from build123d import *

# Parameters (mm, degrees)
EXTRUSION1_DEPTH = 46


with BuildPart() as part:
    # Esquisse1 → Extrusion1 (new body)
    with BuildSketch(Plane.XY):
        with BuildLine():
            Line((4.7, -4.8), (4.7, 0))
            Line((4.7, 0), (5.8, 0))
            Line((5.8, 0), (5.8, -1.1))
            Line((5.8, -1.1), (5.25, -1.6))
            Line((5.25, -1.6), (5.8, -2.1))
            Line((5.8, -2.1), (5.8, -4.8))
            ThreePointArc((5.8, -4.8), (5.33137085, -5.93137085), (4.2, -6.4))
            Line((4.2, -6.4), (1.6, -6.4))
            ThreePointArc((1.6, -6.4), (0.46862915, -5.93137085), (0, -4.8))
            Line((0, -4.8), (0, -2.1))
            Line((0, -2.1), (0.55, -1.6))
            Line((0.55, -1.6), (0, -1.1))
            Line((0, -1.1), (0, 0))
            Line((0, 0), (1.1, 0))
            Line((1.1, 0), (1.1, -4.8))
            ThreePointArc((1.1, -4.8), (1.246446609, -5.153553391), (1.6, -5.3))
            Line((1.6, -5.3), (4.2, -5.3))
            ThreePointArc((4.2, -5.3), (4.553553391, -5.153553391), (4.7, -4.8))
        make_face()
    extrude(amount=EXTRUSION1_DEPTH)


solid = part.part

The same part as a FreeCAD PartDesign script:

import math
import FreeCAD as App
import Part
import Sketcher
Q = App.Units.Quantity

doc = App.newDocument("Part")
body = doc.addObject("PartDesign::Body", "Body")

sketch1 = body.newObject("Sketcher::SketchObject", "Sketch")
sketch1.AttachmentSupport = (doc.getObject("XY_Plane"), [""])
sketch1.MapMode = "FlatFace"
sketch1.addGeometry(Part.LineSegment(App.Vector(4.7, 0, 0), App.Vector(4.7, -4.8, 0)), False)
sketch1.addGeometry(Part.ArcOfCircle(Part.Circle(App.Vector(4.2, -4.8, 0), App.Vector(0, 0, 1), 0.5), math.radians(-90), math.radians(0)), False)
sketch1.addGeometry(Part.LineSegment(App.Vector(4.2, -5.3, 0), App.Vector(1.6, -5.3, 0)), False)
sketch1.addGeometry(Part.ArcOfCircle(Part.Circle(App.Vector(1.6, -4.8, 0), App.Vector(0, 0, 1), 0.5), math.radians(180), math.radians(270)), False)
sketch1.addGeometry(Part.LineSegment(App.Vector(1.1, -4.8, 0), App.Vector(1.1, 0, 0)), False)
sketch1.addGeometry(Part.LineSegment(App.Vector(1.1, 0, 0), App.Vector(0, 0, 0)), False)
sketch1.addGeometry(Part.LineSegment(App.Vector(0, 0, 0), App.Vector(0, -1.1, 0)), False)
sketch1.addGeometry(Part.LineSegment(App.Vector(0, -1.1, 0), App.Vector(0.55, -1.6, 0)), False)
sketch1.addGeometry(Part.LineSegment(App.Vector(0.55, -1.6, 0), App.Vector(0, -2.1, 0)), False)
sketch1.addGeometry(Part.LineSegment(App.Vector(0, -2.1, 0), App.Vector(0, -4.8, 0)), False)
sketch1.addGeometry(Part.ArcOfCircle(Part.Circle(App.Vector(1.6, -4.8, 0), App.Vector(0, 0, 1), 1.6), math.radians(180), math.radians(270)), False)
sketch1.addGeometry(Part.LineSegment(App.Vector(1.6, -6.4, 0), App.Vector(4.2, -6.4, 0)), False)
sketch1.addGeometry(Part.ArcOfCircle(Part.Circle(App.Vector(4.2, -4.8, 0), App.Vector(0, 0, 1), 1.6), math.radians(-90), math.radians(0)), False)
sketch1.addGeometry(Part.LineSegment(App.Vector(5.8, -4.8, 0), App.Vector(5.8, -2.1, 0)), False)
sketch1.addGeometry(Part.LineSegment(App.Vector(5.8, -2.1, 0), App.Vector(5.25, -1.6, 0)), False)
sketch1.addGeometry(Part.LineSegment(App.Vector(5.25, -1.6, 0), App.Vector(5.8, -1.1, 0)), False)
sketch1.addGeometry(Part.LineSegment(App.Vector(5.8, -1.1, 0), App.Vector(5.8, 0, 0)), False)
sketch1.addGeometry(Part.LineSegment(App.Vector(5.8, 0, 0), App.Vector(4.7, 0, 0)), False)
sketch1.addConstraint(Sketcher.Constraint("Tangent", 0, 2, 1, 2))
sketch1.addConstraint(Sketcher.Constraint("Tangent", 1, 1, 2, 1))
sketch1.addConstraint(Sketcher.Constraint("Tangent", 2, 2, 3, 2))
sketch1.addConstraint(Sketcher.Constraint("Tangent", 3, 1, 4, 1))
sketch1.addConstraint(Sketcher.Constraint("Coincident", 4, 2, 5, 1))
sketch1.addConstraint(Sketcher.Constraint("Coincident", 5, 2, 6, 1))
sketch1.addConstraint(Sketcher.Constraint("Coincident", 6, 2, 7, 1))
sketch1.addConstraint(Sketcher.Constraint("Coincident", 7, 2, 8, 1))
sketch1.addConstraint(Sketcher.Constraint("Coincident", 8, 2, 9, 1))
sketch1.addConstraint(Sketcher.Constraint("Tangent", 9, 2, 10, 1))
sketch1.addConstraint(Sketcher.Constraint("Tangent", 10, 2, 11, 1))
sketch1.addConstraint(Sketcher.Constraint("Tangent", 11, 2, 12, 1))
sketch1.addConstraint(Sketcher.Constraint("Tangent", 12, 2, 13, 1))
sketch1.addConstraint(Sketcher.Constraint("Coincident", 13, 2, 14, 1))
sketch1.addConstraint(Sketcher.Constraint("Coincident", 14, 2, 15, 1))
sketch1.addConstraint(Sketcher.Constraint("Coincident", 15, 2, 16, 1))
sketch1.addConstraint(Sketcher.Constraint("Coincident", 16, 2, 17, 1))
sketch1.addConstraint(Sketcher.Constraint("Coincident", 17, 2, 0, 1))
sketch1.addConstraint(Sketcher.Constraint("Vertical", 0))
sketch1.addConstraint(Sketcher.Constraint("Horizontal", 2))
sketch1.addConstraint(Sketcher.Constraint("Vertical", 4))
sketch1.addConstraint(Sketcher.Constraint("Horizontal", 5))
sketch1.addConstraint(Sketcher.Constraint("Vertical", 6))
sketch1.addConstraint(Sketcher.Constraint("Vertical", 9))
sketch1.addConstraint(Sketcher.Constraint("Horizontal", 11))
sketch1.addConstraint(Sketcher.Constraint("Vertical", 13))
sketch1.addConstraint(Sketcher.Constraint("Vertical", 16))
sketch1.addConstraint(Sketcher.Constraint("Horizontal", 17))
sketch1.addConstraint(Sketcher.Constraint("Coincident", 5, 2, -1, 1))
sketch1.addConstraint(Sketcher.Constraint("Coincident", 10, 3, 3, 3))
sketch1.addConstraint(Sketcher.Constraint("Coincident", 12, 3, 1, 3))
sketch1.addConstraint(Sketcher.Constraint("Equal", 1, 3))
sketch1.addConstraint(Sketcher.Constraint("PointOnObject", 8, 2, -2))
sketch1.addConstraint(Sketcher.Constraint("PointOnObject", 16, 2, -1))
sketch1.addConstraint(Sketcher.Constraint("Parallel", 7, 14))
sketch1.addConstraint(Sketcher.Constraint("Parallel", 8, 15))
sketch1.addConstraint(Sketcher.Constraint("Horizontal", 8, 2, 13, 2))
sketch1.addConstraint(Sketcher.Constraint("Horizontal", 7, 2, 14, 2))
sketch1.addConstraint(Sketcher.Constraint("Horizontal", 6, 2, 15, 2))
sketch1.addConstraint(Sketcher.Constraint("Vertical", 13, 2, 15, 2))
sketch1.addConstraint(Sketcher.Constraint("Equal", 17, 6))
sketch1.addConstraint(Sketcher.Constraint("Radius", 1, Q("0.5 mm")))
sketch1.addConstraint(Sketcher.Constraint("Radius", 10, Q("1.6 mm")))
sketch1.addConstraint(Sketcher.Constraint("DistanceX", 2, 2, 2, 1, Q("2.6 mm")))
sketch1.addConstraint(Sketcher.Constraint("DistanceY", 0, 2, 0, 1, Q("4.8 mm")))
sketch1.addConstraint(Sketcher.Constraint("DistanceY", 9, 2, 9, 1, Q("2.7 mm")))
sketch1.addConstraint(Sketcher.Constraint("DistanceX", -1, 1, 7, 2, Q("0.55 mm")))
pad1 = body.newObject("PartDesign::Pad", "Pad")
pad1.Profile = sketch1
pad1.Length = 46

doc.recompute()
